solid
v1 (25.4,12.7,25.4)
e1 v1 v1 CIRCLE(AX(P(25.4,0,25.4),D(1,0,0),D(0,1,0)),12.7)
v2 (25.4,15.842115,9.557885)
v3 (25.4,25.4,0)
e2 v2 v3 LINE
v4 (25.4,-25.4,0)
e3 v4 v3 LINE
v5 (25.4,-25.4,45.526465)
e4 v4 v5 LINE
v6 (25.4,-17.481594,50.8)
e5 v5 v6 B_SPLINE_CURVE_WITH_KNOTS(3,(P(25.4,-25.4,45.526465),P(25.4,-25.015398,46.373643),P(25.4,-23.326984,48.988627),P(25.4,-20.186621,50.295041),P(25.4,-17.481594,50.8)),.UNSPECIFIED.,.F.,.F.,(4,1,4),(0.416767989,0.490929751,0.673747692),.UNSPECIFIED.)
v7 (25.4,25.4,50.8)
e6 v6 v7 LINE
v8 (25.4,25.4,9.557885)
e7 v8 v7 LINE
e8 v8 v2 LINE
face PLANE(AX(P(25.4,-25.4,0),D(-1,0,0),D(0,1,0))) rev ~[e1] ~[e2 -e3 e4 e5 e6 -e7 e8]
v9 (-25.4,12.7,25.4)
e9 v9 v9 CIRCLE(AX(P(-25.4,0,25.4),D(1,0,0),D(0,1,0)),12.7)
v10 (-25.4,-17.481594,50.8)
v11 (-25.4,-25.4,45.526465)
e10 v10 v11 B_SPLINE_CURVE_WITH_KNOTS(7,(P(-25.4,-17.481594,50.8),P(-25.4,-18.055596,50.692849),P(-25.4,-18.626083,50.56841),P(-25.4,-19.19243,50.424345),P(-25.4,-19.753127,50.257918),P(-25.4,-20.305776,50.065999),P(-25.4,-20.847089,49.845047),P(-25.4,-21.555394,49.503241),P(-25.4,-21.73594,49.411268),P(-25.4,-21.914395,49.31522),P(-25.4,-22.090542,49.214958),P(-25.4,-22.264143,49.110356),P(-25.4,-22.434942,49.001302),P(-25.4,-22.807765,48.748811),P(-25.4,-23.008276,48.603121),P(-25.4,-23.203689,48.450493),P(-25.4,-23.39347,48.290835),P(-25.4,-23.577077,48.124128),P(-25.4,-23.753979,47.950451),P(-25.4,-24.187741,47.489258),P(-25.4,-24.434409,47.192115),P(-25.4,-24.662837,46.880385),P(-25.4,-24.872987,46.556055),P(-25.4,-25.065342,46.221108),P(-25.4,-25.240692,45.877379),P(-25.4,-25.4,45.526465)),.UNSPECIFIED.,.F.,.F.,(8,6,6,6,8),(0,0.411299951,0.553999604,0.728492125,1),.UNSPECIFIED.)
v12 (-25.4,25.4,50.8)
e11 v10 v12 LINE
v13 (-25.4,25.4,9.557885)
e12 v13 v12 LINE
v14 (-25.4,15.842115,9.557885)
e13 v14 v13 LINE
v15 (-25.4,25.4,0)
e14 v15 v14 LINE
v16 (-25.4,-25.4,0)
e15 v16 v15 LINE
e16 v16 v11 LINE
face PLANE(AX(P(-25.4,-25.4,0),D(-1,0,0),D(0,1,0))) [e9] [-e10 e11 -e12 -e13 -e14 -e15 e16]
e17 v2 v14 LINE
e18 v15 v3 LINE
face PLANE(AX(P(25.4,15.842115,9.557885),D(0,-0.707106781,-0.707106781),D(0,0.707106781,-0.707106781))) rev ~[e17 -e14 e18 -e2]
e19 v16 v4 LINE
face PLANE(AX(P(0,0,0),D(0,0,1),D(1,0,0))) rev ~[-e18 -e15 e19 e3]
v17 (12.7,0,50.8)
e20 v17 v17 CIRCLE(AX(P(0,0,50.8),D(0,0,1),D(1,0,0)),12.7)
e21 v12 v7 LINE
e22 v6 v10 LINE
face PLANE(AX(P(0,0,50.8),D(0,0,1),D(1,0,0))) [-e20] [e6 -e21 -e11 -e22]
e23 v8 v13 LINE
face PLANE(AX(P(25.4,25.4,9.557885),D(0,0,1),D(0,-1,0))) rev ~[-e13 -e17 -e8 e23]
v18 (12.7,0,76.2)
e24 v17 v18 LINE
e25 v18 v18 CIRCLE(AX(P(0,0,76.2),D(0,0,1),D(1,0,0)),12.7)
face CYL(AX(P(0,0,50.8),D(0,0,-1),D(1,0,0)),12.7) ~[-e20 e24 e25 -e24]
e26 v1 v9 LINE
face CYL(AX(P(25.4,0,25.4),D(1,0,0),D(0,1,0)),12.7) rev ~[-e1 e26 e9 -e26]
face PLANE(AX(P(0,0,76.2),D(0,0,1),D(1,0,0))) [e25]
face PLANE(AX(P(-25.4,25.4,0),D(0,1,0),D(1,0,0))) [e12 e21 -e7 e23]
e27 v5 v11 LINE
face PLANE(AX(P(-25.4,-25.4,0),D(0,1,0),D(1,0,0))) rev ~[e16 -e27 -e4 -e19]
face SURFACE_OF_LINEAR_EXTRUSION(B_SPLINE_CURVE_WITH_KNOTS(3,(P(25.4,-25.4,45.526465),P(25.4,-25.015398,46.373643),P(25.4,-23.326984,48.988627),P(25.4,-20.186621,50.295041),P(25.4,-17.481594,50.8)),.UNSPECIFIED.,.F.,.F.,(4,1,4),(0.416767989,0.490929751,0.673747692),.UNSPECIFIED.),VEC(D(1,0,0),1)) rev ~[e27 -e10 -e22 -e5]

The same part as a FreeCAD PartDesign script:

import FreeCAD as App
import Part
import Sketcher

V = App.Vector
Q = App.Units.Quantity


def add_polygon(sketch, points):
    """Adds a closed chain of lines whose ends are joined by coincident constraints."""
    first, n = sketch.GeometryCount, len(points)
    for a, b in zip(points, points[1:] + points[:1]):
        sketch.addGeometry(Part.LineSegment(App.Vector(*a, 0), App.Vector(*b, 0)), False)
    for i in range(n):
        sketch.addConstraint(Sketcher.Constraint("Coincident", first + i, 2, first + (i + 1) % n, 1))

doc = App.newDocument("Part")
body = doc.addObject("PartDesign::Body", "Body")

sketch1 = body.newObject("Sketcher::SketchObject", "Sketch")
sketch1.AttachmentSupport = (doc.getObject("XY_Plane"), [""])
sketch1.MapMode = "FlatFace"
add_polygon(sketch1, [(-25, 25), (-25, -25), (25, -25), (25, 25)])
sketch1.addConstraint([
    Sketcher.Constraint("Vertical", 0),
    Sketcher.Constraint("Horizontal", 1),
    Sketcher.Constraint("Vertical", 2),
    Sketcher.Constraint("Horizontal", 3),
    Sketcher.Constraint("Symmetric", 0, 2, 2, 2, -1, 1),
    Sketcher.Constraint("Equal", 3, 0),
    Sketcher.Constraint("DistanceX", 1, 1, 1, 2, Q("2 in")),
])
pad1 = body.newObject("PartDesign::Pad", "Pad")
pad1.Profile = sketch1
pad1.Length = Q("2 in")

sketch2 = body.newObject("Sketcher::SketchObject", "Sketch001")
sketch2.AttachmentSupport = (doc.getObject("XY_Plane"), [""])
sketch2.MapMode = "FlatFace"
sketch2.AttachmentOffset = App.Placement(V(0, 0, 2 * 25.4), App.Rotation())
sketch2.addGeometry(Part.Circle(V(0, 0, 0), V(0, 0, 1), 13), False)
sketch2.addConstraint([
    Sketcher.Constraint("Coincident", 0, 3, -1, 1),
    Sketcher.Constraint("Diameter", 0, Q("1 in")),
])
pad2 = body.newObject("PartDesign::Pad", "Pad001")
pad2.Profile = sketch2
pad2.Length = Q("1 in")

sketch3 = body.newObject("Sketcher::SketchObject", "Sketch002")
sketch3.AttachmentSupport = (doc.getObject("YZ_Plane"), [""])
sketch3.MapMode = "FlatFace"
sketch3.AttachmentOffset = App.Placement(V(0, 0, 1 * 25.4), App.Rotation())
sketch3.addGeometry(Part.Circle(V(0, 25, 0), V(0, 0, 1), 13), False)
sketch3.addConstraint([
    Sketcher.Constraint("PointOnObject", 0, 3, -2),
    Sketcher.Constraint("Diameter", 0, Q("1 in")),
    Sketcher.Constraint("DistanceY", -1, 1, 0, 3, Q("1 in")),
])
pocket1 = body.newObject("PartDesign::Pocket", "Pocket")
pocket1.Profile = sketch3
pocket1.Length = Q("3.9 in")

sketch4 = body.newObject("Sketcher::SketchObject", "Sketch003")
sketch4.AttachmentSupport = (doc.getObject("YZ_Plane"), [""])
sketch4.MapMode = "FlatFace"
sketch4.AttachmentOffset = App.Placement(V(0, 0, 1 * 25.4), App.Rotation())
add_polygon(sketch4, [(25, 10), (16, 10), (25, 0)])
sketch4.addConstraint([
    Sketcher.Constraint("Horizontal", 0),
    Sketcher.Constraint("Vertical", 2),
    Sketcher.Constraint("PointOnObject", 1, 2, -1),
    Sketcher.Constraint("Equal", 0, 2),
    Sketcher.Constraint("DistanceX", -1, 1, 1, 2, Q("1 in")),
    Sketcher.Constraint("Distance", 1, Q("13.516891 mm")),
])
pocket2 = body.newObject("PartDesign::Pocket", "Pocket001")
pocket2.Profile = sketch4
pocket2.Length = Q("2.38 in")

sketch5 = body.newObject("Sketcher::SketchObject", "Sketch004")
sketch5.AttachmentSupport = (doc.getObject("YZ_Plane"), [""])
sketch5.MapMode = "FlatFace"
sketch5.AttachmentOffset = App.Placement(V(0, 0, 1 * 25.4), App.Rotation())
sketch5.addGeometry([
    Part.LineSegment(V(-25.4, 50.8, 0), V(-25.4, 45.526465, 0)),
    Part.BSplineCurve([V(-25.4, 45.526465, 0), V(-25.015398, 46.373643, 0), V(-23.326984, 48.988627, 0), V(-20.186621, 50.295041, 0), V(-17.481594, 50.8, 0)], [4, 1, 4], [0.416767989, 0.490929751, 0.673747692], False, 3, [1, 1, 1, 1, 1], False),
    Part.LineSegment(V(-17.481594, 50.8, 0), V(-25.4, 50.8, 0)),
], False)
sketch5.addConstraint([
    Sketcher.Constraint("Block", 1),
    Sketcher.Constraint("Coincident", 0, 2, 1, 1),
    Sketcher.Constraint("Coincident", 1, 2, 2, 1),
    Sketcher.Constraint("Coincident", 2, 2, 0, 1),
    Sketcher.Constraint("Vertical", 0),
    Sketcher.Constraint("Horizontal", 2),
])
pocket3 = body.newObject("PartDesign::Pocket", "Pocket002")
pocket3.Profile = sketch5
pocket3.Length = Q("2.078 in")

doc.recompute()
